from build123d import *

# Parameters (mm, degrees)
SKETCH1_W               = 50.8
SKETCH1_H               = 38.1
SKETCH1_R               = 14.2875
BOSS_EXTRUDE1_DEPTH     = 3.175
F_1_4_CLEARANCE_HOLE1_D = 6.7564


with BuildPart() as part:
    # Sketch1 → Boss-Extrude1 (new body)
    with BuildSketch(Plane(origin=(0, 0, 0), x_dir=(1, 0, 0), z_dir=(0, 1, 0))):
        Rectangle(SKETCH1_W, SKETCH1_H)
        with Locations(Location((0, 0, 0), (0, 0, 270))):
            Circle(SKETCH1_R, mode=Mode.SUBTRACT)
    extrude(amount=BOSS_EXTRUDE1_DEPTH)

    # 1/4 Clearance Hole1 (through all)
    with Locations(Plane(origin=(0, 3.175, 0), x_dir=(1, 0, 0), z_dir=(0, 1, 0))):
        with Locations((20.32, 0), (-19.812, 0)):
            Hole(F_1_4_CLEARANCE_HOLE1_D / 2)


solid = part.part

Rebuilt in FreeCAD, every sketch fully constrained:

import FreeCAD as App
import Part
import Sketcher
Q = App.Units.Quantity


def add_polygon(sketch, points):
    """Adds a closed chain of lines whose ends are joined by coincident constraints."""
    first, n = sketch.GeometryCount, len(points)
    for a, b in zip(points, points[1:] + points[:1]):
        sketch.addGeometry(Part.LineSegment(App.Vector(*a, 0), App.Vector(*b, 0)), False)
    for i in range(n):
        sketch.addConstraint(Sketcher.Constraint("Coincident", first + i, 2, first + (i + 1) % n, 1))

doc = App.newDocument("Part")
body = doc.addObject("PartDesign::Body", "Body")

# Sketch on XZ plane
sketch1 = body.newObject("Sketcher::SketchObject", "Sketch")
sketch1.AttachmentSupport = (doc.getObject("XZ_Plane"), [""])
sketch1.MapMode = "FlatFace"
add_polygon(sketch1, [(-25, -19), (-25, 19), (25, 19), (25, -19)])  # lines 0-3
sketch1.addGeometry(Part.Circle(App.Vector(0, 0, 0), App.Vector(0, 0, 1), 14), False)  # 4
sketch1.addConstraint(Sketcher.Constraint("Vertical", 0))
sketch1.addConstraint(Sketcher.Constraint("Horizontal", 1))
sketch1.addConstraint(Sketcher.Constraint("Vertical", 2))
sketch1.addConstraint(Sketcher.Constraint("Horizontal", 3))
sketch1.addConstraint(Sketcher.Constraint("Coincident", 4, 3, -1, 1))
sketch1.addConstraint(Sketcher.Constraint("Symmetric", 0, 2, 2, 2, -1, 1))
sketch1.addConstraint(Sketcher.Constraint("DistanceX", 1, 1, 1, 2, Q("2 in")))
sketch1.addConstraint(Sketcher.Constraint("Diameter", 4, Q("1.125 in")))
sketch1.addConstraint(Sketcher.Constraint("DistanceY", 0, 1, 0, 2, Q("1.5 in")))
pad1 = body.newObject("PartDesign::Pad", "Pad")
pad1.Profile = sketch1
pad1.Length = Q("0.125 in")
pad1.Reversed = True

# Sketch on XZ plane
sketch2 = body.newObject("Sketcher::SketchObject", "Sketch001")
sketch2.AttachmentSupport = (doc.getObject("XZ_Plane"), [""])
sketch2.MapMode = "FlatFace"
sketch2.AttachmentOffset = App.Placement(App.Vector(0, 0, -0.125 * 25.4), App.Rotation())
sketch2.addGeometry(Part.Circle(App.Vector(20.3, 0, 0), App.Vector(0, 0, 1), 3.4), False)
sketch2.addGeometry(Part.Circle(App.Vector(-19.8, 0, 0), App.Vector(0, 0, 1), 3.4), False)
sketch2.addConstraint(Sketcher.Constraint("Equal", 0, 1))
sketch2.addConstraint(Sketcher.Constraint("PointOnObject", 0, 3, -1))
sketch2.addConstraint(Sketcher.Constraint("PointOnObject", 1, 3, -1))
sketch2.addConstraint(Sketcher.Constraint("Diameter", 0, Q("0.266 in")))
sketch2.addConstraint(Sketcher.Constraint("DistanceX", -1, 1, 0, 3, Q("0.8 in")))
sketch2.addConstraint(Sketcher.Constraint("DistanceX", 1, 3, -1, 1, Q("0.78 in")))
doc.recompute()
hole = body.newObject("PartDesign::Hole", "Hole")
hole.Profile = sketch2
hole.ThreadType = "None"
hole.Diameter = Q("0.266 in")
hole.DepthType = "ThroughAll"
hole.Reversed = True

doc.recompute()
